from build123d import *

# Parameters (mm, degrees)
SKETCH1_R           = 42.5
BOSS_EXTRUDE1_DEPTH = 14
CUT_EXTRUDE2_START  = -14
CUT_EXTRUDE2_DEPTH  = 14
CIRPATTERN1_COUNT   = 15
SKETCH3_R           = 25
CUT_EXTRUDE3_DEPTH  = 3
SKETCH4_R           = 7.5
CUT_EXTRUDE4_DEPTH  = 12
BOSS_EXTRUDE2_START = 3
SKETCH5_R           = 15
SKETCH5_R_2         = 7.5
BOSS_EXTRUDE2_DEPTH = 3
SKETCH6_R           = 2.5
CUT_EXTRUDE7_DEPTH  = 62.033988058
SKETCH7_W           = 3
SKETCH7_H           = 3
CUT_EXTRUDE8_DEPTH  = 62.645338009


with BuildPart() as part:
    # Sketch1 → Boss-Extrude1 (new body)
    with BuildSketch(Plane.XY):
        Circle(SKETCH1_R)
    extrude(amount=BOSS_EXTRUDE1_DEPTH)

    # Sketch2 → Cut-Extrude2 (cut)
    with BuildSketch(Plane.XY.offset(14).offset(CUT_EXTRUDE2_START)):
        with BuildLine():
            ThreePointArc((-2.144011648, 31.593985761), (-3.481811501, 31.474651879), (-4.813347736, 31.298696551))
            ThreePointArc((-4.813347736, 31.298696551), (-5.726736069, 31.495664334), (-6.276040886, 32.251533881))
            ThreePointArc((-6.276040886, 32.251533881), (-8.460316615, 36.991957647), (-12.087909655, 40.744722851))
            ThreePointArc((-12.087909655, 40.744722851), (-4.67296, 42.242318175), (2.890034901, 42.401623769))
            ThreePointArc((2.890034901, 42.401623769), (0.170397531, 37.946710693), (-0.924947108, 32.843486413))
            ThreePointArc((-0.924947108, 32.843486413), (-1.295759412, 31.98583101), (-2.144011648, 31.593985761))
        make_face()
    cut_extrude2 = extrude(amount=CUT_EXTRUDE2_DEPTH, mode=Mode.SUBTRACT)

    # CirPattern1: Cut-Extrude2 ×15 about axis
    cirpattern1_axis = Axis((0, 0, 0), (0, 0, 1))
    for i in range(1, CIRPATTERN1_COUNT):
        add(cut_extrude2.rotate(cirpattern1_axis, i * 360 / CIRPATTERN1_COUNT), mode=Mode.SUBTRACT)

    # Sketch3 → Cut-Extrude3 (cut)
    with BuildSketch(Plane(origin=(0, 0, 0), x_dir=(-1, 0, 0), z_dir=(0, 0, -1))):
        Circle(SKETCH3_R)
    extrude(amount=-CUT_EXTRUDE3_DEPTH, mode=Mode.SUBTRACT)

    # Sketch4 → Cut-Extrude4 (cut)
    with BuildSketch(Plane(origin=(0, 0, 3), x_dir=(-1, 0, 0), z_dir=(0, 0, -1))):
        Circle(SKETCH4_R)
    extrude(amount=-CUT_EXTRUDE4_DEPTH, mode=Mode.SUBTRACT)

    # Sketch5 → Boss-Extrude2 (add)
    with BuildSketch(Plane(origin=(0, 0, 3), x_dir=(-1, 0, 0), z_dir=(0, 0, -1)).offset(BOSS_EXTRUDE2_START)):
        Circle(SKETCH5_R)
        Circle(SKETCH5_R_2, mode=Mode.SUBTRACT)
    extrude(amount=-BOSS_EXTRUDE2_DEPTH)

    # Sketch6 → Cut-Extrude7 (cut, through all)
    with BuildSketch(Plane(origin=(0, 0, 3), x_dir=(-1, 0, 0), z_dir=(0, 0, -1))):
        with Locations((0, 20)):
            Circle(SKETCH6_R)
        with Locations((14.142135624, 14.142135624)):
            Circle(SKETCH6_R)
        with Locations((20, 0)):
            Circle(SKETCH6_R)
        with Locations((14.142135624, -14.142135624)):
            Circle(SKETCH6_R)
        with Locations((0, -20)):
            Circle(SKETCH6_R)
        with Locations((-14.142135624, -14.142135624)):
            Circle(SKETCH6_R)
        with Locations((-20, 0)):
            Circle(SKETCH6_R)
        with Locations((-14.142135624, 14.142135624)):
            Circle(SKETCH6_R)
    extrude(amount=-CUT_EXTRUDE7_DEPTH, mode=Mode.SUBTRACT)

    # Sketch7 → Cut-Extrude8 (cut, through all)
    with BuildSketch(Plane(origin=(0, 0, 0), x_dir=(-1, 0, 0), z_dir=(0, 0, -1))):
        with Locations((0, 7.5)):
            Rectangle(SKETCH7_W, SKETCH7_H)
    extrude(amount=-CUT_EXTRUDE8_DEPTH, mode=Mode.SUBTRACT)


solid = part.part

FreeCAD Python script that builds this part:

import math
import FreeCAD as App
import Part
import Sketcher
from FreeCAD import Vector
Q = App.Units.Quantity

doc = App.newDocument("Part")
params = doc.addObject("Spreadsheet::Sheet", "Params")
for row, (alias, value) in enumerate([
    ("sketch1_diameter", "85 mm"),
    ("pad1_length", "14 mm"),
    ("sketch2_radius", "42.5 mm"),
    ("pocket1_length", "14 mm"),
    ("sketch3_diameter", "50 mm"),
    ("pocket2_length", "3 mm"),
    ("sketch4_diameter", "15 mm"),
    ("pocket3_length", "12 mm"),
    ("sketch5_diameter", "30 mm"),
    ("sketch5_diameter2", "15 mm"),
    ("pad2_length", "3 mm"),
    ("sketch6_diameter", "5 mm"),
    ("sketch7_width", "3 mm"),
], start=1):
    params.set(f"A{row}", alias)
    params.set(f"B{row}", "=" + value)
    params.setAlias(f"B{row}", alias)

body = doc.addObject("PartDesign::Body", "Body")

sketch1 = doc.addObject("Sketcher::SketchObject", "Sketch")
body.addObject(sketch1)
sketch1.AttachmentSupport = (doc.XY_Plane, [""])
sketch1.MapMode = "FlatFace"
sketch1.addGeometry(Part.Circle(Vector(0, 0, 0), Vector(0, 0, 1), 42.5), False)
sketch1.addConstraint([
    Sketcher.Constraint("Coincident", 0, 3, -1, 1),
    Sketcher.Constraint("Diameter", 0, Q("85 mm")),
])
sketch1.setExpression("Constraints[1]", "Params.sketch1_diameter")
pad1 = doc.addObject("PartDesign::Pad", "Pad")
body.addObject(pad1)
pad1.Profile = sketch1
pad1.setExpression("Length", "Params.pad1_length")

sketch2 = doc.addObject("Sketcher::SketchObject", "Sketch001")
body.addObject(sketch2)
sketch2.AttachmentSupport = (doc.XY_Plane, [""])
sketch2.MapMode = "FlatFace"
sketch2.addGeometry([
    Part.ArcOfCircle(Part.Circle(Vector(0, 0, 0), Vector(0, 0, 1), 31.66665), math.radians(93.882219), math.radians(98.742878)),
    Part.ArcOfCircle(Part.Circle(Vector(-2.232632, 32.899882, 0), Vector(0, 0, 1), 1.3089), math.radians(-86.117781), math.radians(-2.469437)),
    Part.ArcOfCircle(Part.Circle(Vector(14.637666, 32.172325, 0), Vector(0, 0, 1), 15.577079), math.radians(138.952146), math.radians(177.530563)),
    Part.ArcOfCircle(Part.Circle(Vector(0, 0, 0), Vector(0, 0, 1), 42.5), math.radians(86.100831), math.radians(106.524266)),
    Part.ArcOfCircle(Part.Circle(Vector(-21.315671, 28.195069, 0), Vector(0, 0, 1), 15.577079), math.radians(15.094534), math.radians(53.672951)),
    Part.ArcOfCircle(Part.Circle(Vector(-5.012301, 32.592388, 0), Vector(0, 0, 1), 1.3089), math.radians(-164.905466), math.radians(-81.257122)),
], False)
sketch2.addConstraint([
    Sketcher.Constraint("Tangent", 0, 1, 1, 1),
    Sketcher.Constraint("Tangent", 1, 2, 2, 2),
    Sketcher.Constraint("Coincident", 2, 1, 3, 1),
    Sketcher.Constraint("Coincident", 3, 2, 4, 2),
    Sketcher.Constraint("Tangent", 4, 1, 5, 1),
    Sketcher.Constraint("Tangent", 5, 2, 0, 2),
    Sketcher.Constraint("Coincident", 0, 3, -1, 1),
    Sketcher.Constraint("Coincident", 3, 3, -1, 1),
    Sketcher.Constraint("Equal", 2, 4),
    Sketcher.Constraint("Equal", 1, 5),
    Sketcher.Constraint("Radius", 3, Q("42.5 mm")),
    Sketcher.Constraint("Radius", 1, Q("1.3089 mm")),
    Sketcher.Constraint("Radius", 0, Q("31.66665 mm")),
    Sketcher.Constraint("Radius", 2, Q("15.577079 mm")),
    Sketcher.Constraint("DistanceX", 5, 3, -1, 1, Q("5.012301 mm")),
    Sketcher.Constraint("DistanceY", 0, 1, 5, 3, Q("0.998402 mm")),
    Sketcher.Constraint("DistanceY", 0, 1, 1, 2, Q("1.249501 mm")),
    Sketcher.Constraint("DistanceX", 3, 2, 0, 1, Q("9.943898 mm")),
])
sketch2.setExpression("Constraints[10]", "Params.sketch2_radius")
pocket1 = doc.addObject("PartDesign::Pocket", "Pocket")
body.addObject(pocket1)
pocket1.Profile = sketch2
pocket1.setExpression("Length", "Params.pocket1_length")
pocket1.Reversed = True
doc.recompute()

polarpattern = doc.addObject("PartDesign::PolarPattern", "PolarPattern")
body.addObject(polarpattern)
polarpattern.Originals = [pocket1]
polarpattern.Axis = (doc.Z_Axis, [""])
polarpattern.Angle = 360
polarpattern.Occurrences = 15
body.Tip = polarpattern

sketch3 = doc.addObject("Sketcher::SketchObject", "Sketch002")
body.addObject(sketch3)
sketch3.AttachmentSupport = (doc.XY_Plane, [""])
sketch3.MapMode = "FlatFace"
sketch3.addGeometry(Part.Circle(Vector(0, 0, 0), Vector(0, 0, 1), 25), False)
sketch3.addConstraint([
    Sketcher.Constraint("Coincident", 0, 3, -1, 1),
    Sketcher.Constraint("Diameter", 0, Q("50 mm")),
])
sketch3.setExpression("Constraints[1]", "Params.sketch3_diameter")
pocket2 = doc.addObject("PartDesign::Pocket", "Pocket001")
body.addObject(pocket2)
pocket2.Profile = sketch3
pocket2.setExpression("Length", "Params.pocket2_length")
pocket2.Reversed = True

sketch4 = doc.addObject("Sketcher::SketchObject", "Sketch003")
body.addObject(sketch4)
sketch4.AttachmentSupport = (doc.XY_Plane, [""])
sketch4.MapMode = "FlatFace"
sketch4.AttachmentOffset = App.Placement(Vector(0, 0, 3), App.Rotation())
sketch4.addGeometry(Part.Circle(Vector(0, 0, 0), Vector(0, 0, 1), 7.5), False)
sketch4.addConstraint([
    Sketcher.Constraint("Coincident", 0, 3, -1, 1),
    Sketcher.Constraint("Diameter", 0, Q("15 mm")),
])
sketch4.setExpression("Constraints[1]", "Params.sketch4_diameter")
pocket3 = doc.addObject("PartDesign::Pocket", "Pocket002")
body.addObject(pocket3)
pocket3.Profile = sketch4
pocket3.setExpression("Length", "Params.pocket3_length")
pocket3.Reversed = True

sketch5 = doc.addObject("Sketcher::SketchObject", "Sketch004")
body.addObject(sketch5)
sketch5.AttachmentSupport = (doc.XY_Plane, [""])
sketch5.MapMode = "FlatFace"
sketch5.addGeometry([
    Part.Circle(Vector(0, 0, 0), Vector(0, 0, 1), 15),
    Part.Circle(Vector(0, 0, 0), Vector(0, 0, 1), 7.5),
], False)
sketch5.addConstraint([
    Sketcher.Constraint("Coincident", 0, 3, -1, 1),
    Sketcher.Constraint("Coincident", 1, 3, -1, 1),
    Sketcher.Constraint("Diameter", 0, Q("30 mm")),
    Sketcher.Constraint("Diameter", 1, Q("15 mm")),
])
sketch5.setExpression("Constraints[2]", "Params.sketch5_diameter")
sketch5.setExpression("Constraints[3]", "Params.sketch5_diameter2")
pad2 = doc.addObject("PartDesign::Pad", "Pad001")
body.addObject(pad2)
pad2.Profile = sketch5
pad2.setExpression("Length", "Params.pad2_length")

sketch6 = doc.addObject("Sketcher::SketchObject", "Sketch005")
body.addObject(sketch6)
sketch6.AttachmentSupport = (doc.XY_Plane, [""])
sketch6.MapMode = "FlatFace"
sketch6.AttachmentOffset = App.Placement(Vector(0, 0, 3), App.Rotation())
sketch6.addGeometry([
    Part.Circle(Vector(0, 20, 0), Vector(0, 0, 1), 2.5),
    Part.Circle(Vector(-14.142136, 14.142136, 0), Vector(0, 0, 1), 2.5),
    Part.Circle(Vector(-20, 0, 0), Vector(0, 0, 1), 2.5),
    Part.Circle(Vector(-14.142136, -14.142136, 0), Vector(0, 0, 1), 2.5),
    Part.Circle(Vector(0, -20, 0), Vector(0, 0, 1), 2.5),
    Part.Circle(Vector(14.142136, -14.142136, 0), Vector(0, 0, 1), 2.5),
    Part.Circle(Vector(20, 0, 0), Vector(0, 0, 1), 2.5),
    Part.Circle(Vector(14.142136, 14.142136, 0), Vector(0, 0, 1), 2.5),
], False)
sketch6.addConstraint([
    Sketcher.Constraint("Equal", 0, 1),
    Sketcher.Constraint("Equal", 1, 2),
    Sketcher.Constraint("Equal", 2, 3),
    Sketcher.Constraint("Equal", 3, 4),
    Sketcher.Constraint("Equal", 4, 5),
    Sketcher.Constraint("Equal", 5, 6),
    Sketcher.Constraint("Equal", 6, 7),
    Sketcher.Constraint("Symmetric", 0, 3, 4, 3, -1, 1),
    Sketcher.Constraint("Symmetric", 1, 3, 5, 3, -1, 1),
    Sketcher.Constraint("Symmetric", 2, 3, 6, 3, -1, 1),
    Sketcher.Constraint("Symmetric", 3, 3, 7, 3, -1, 1),
    Sketcher.Constraint("Symmetric", 3, 3, 5, 3, -2),
    Sketcher.Constraint("PointOnObject", 0, 3, -2),
    Sketcher.Constraint("PointOnObject", 2, 3, -1),
    Sketcher.Constraint("Diameter", 0, Q("5 mm")),
    Sketcher.Constraint("DistanceY", -1, 1, 0, 3, Q("20 mm")),
    Sketcher.Constraint("DistanceX", 2, 3, -1, 1, Q("20 mm")),
    Sketcher.Constraint("DistanceY", 3, 3, 1, 3, Q("28.284271 mm")),
    Sketcher.Constraint("DistanceX", 3, 3, 5, 3, Q("28.284271 mm")),
])
sketch6.setExpression("Constraints[14]", "Params.sketch6_diameter")
pocket4 = doc.addObject("PartDesign::Pocket", "Pocket003")
body.addObject(pocket4)
pocket4.Profile = sketch6
pocket4.Type = "ThroughAll"
pocket4.Reversed = True

sketch7 = doc.addObject("Sketcher::SketchObject", "Sketch006")
body.addObject(sketch7)
sketch7.AttachmentSupport = (doc.XY_Plane, [""])
sketch7.MapMode = "FlatFace"
sketch7.addGeometry([
    Part.LineSegment(Vector(1.5, 9, 0), Vector(1.5, 6, 0)),
    Part.LineSegment(Vector(1.5, 6, 0), Vector(-1.5, 6, 0)),
    Part.LineSegment(Vector(-1.5, 6, 0), Vector(-1.5, 9, 0)),
    Part.LineSegment(Vector(-1.5, 9, 0), Vector(1.5, 9, 0)),
], False)
sketch7.addConstraint([
    Sketcher.Constraint("Coincident", 0, 2, 1, 1),
    Sketcher.Constraint("Coincident", 1, 2, 2, 1),
    Sketcher.Constraint("Coincident", 2, 2, 3, 1),
    Sketcher.Constraint("Coincident", 3, 2, 0, 1),
    Sketcher.Constraint("Vertical", 0),
    Sketcher.Constraint("Horizontal", 1),
    Sketcher.Constraint("Vertical", 2),
    Sketcher.Constraint("Horizontal", 3),
    Sketcher.Constraint("Equal", 3, 0),
    Sketcher.Constraint("DistanceX", 1, 2, 1, 1, Q("3 mm")),
    Sketcher.Constraint("DistanceY", -1, 1, 0, 2, Q("6 mm")),
    Sketcher.Constraint("DistanceX", -1, 1, 0, 2, Q("1.5 mm")),
])
sketch7.setExpression("Constraints[9]", "Params.sketch7_width")
pocket5 = doc.addObject("PartDesign::Pocket", "Pocket004")
body.addObject(pocket5)
pocket5.Profile = sketch7
pocket5.Type = "ThroughAll"
pocket5.Reversed = True

doc.recompute()
